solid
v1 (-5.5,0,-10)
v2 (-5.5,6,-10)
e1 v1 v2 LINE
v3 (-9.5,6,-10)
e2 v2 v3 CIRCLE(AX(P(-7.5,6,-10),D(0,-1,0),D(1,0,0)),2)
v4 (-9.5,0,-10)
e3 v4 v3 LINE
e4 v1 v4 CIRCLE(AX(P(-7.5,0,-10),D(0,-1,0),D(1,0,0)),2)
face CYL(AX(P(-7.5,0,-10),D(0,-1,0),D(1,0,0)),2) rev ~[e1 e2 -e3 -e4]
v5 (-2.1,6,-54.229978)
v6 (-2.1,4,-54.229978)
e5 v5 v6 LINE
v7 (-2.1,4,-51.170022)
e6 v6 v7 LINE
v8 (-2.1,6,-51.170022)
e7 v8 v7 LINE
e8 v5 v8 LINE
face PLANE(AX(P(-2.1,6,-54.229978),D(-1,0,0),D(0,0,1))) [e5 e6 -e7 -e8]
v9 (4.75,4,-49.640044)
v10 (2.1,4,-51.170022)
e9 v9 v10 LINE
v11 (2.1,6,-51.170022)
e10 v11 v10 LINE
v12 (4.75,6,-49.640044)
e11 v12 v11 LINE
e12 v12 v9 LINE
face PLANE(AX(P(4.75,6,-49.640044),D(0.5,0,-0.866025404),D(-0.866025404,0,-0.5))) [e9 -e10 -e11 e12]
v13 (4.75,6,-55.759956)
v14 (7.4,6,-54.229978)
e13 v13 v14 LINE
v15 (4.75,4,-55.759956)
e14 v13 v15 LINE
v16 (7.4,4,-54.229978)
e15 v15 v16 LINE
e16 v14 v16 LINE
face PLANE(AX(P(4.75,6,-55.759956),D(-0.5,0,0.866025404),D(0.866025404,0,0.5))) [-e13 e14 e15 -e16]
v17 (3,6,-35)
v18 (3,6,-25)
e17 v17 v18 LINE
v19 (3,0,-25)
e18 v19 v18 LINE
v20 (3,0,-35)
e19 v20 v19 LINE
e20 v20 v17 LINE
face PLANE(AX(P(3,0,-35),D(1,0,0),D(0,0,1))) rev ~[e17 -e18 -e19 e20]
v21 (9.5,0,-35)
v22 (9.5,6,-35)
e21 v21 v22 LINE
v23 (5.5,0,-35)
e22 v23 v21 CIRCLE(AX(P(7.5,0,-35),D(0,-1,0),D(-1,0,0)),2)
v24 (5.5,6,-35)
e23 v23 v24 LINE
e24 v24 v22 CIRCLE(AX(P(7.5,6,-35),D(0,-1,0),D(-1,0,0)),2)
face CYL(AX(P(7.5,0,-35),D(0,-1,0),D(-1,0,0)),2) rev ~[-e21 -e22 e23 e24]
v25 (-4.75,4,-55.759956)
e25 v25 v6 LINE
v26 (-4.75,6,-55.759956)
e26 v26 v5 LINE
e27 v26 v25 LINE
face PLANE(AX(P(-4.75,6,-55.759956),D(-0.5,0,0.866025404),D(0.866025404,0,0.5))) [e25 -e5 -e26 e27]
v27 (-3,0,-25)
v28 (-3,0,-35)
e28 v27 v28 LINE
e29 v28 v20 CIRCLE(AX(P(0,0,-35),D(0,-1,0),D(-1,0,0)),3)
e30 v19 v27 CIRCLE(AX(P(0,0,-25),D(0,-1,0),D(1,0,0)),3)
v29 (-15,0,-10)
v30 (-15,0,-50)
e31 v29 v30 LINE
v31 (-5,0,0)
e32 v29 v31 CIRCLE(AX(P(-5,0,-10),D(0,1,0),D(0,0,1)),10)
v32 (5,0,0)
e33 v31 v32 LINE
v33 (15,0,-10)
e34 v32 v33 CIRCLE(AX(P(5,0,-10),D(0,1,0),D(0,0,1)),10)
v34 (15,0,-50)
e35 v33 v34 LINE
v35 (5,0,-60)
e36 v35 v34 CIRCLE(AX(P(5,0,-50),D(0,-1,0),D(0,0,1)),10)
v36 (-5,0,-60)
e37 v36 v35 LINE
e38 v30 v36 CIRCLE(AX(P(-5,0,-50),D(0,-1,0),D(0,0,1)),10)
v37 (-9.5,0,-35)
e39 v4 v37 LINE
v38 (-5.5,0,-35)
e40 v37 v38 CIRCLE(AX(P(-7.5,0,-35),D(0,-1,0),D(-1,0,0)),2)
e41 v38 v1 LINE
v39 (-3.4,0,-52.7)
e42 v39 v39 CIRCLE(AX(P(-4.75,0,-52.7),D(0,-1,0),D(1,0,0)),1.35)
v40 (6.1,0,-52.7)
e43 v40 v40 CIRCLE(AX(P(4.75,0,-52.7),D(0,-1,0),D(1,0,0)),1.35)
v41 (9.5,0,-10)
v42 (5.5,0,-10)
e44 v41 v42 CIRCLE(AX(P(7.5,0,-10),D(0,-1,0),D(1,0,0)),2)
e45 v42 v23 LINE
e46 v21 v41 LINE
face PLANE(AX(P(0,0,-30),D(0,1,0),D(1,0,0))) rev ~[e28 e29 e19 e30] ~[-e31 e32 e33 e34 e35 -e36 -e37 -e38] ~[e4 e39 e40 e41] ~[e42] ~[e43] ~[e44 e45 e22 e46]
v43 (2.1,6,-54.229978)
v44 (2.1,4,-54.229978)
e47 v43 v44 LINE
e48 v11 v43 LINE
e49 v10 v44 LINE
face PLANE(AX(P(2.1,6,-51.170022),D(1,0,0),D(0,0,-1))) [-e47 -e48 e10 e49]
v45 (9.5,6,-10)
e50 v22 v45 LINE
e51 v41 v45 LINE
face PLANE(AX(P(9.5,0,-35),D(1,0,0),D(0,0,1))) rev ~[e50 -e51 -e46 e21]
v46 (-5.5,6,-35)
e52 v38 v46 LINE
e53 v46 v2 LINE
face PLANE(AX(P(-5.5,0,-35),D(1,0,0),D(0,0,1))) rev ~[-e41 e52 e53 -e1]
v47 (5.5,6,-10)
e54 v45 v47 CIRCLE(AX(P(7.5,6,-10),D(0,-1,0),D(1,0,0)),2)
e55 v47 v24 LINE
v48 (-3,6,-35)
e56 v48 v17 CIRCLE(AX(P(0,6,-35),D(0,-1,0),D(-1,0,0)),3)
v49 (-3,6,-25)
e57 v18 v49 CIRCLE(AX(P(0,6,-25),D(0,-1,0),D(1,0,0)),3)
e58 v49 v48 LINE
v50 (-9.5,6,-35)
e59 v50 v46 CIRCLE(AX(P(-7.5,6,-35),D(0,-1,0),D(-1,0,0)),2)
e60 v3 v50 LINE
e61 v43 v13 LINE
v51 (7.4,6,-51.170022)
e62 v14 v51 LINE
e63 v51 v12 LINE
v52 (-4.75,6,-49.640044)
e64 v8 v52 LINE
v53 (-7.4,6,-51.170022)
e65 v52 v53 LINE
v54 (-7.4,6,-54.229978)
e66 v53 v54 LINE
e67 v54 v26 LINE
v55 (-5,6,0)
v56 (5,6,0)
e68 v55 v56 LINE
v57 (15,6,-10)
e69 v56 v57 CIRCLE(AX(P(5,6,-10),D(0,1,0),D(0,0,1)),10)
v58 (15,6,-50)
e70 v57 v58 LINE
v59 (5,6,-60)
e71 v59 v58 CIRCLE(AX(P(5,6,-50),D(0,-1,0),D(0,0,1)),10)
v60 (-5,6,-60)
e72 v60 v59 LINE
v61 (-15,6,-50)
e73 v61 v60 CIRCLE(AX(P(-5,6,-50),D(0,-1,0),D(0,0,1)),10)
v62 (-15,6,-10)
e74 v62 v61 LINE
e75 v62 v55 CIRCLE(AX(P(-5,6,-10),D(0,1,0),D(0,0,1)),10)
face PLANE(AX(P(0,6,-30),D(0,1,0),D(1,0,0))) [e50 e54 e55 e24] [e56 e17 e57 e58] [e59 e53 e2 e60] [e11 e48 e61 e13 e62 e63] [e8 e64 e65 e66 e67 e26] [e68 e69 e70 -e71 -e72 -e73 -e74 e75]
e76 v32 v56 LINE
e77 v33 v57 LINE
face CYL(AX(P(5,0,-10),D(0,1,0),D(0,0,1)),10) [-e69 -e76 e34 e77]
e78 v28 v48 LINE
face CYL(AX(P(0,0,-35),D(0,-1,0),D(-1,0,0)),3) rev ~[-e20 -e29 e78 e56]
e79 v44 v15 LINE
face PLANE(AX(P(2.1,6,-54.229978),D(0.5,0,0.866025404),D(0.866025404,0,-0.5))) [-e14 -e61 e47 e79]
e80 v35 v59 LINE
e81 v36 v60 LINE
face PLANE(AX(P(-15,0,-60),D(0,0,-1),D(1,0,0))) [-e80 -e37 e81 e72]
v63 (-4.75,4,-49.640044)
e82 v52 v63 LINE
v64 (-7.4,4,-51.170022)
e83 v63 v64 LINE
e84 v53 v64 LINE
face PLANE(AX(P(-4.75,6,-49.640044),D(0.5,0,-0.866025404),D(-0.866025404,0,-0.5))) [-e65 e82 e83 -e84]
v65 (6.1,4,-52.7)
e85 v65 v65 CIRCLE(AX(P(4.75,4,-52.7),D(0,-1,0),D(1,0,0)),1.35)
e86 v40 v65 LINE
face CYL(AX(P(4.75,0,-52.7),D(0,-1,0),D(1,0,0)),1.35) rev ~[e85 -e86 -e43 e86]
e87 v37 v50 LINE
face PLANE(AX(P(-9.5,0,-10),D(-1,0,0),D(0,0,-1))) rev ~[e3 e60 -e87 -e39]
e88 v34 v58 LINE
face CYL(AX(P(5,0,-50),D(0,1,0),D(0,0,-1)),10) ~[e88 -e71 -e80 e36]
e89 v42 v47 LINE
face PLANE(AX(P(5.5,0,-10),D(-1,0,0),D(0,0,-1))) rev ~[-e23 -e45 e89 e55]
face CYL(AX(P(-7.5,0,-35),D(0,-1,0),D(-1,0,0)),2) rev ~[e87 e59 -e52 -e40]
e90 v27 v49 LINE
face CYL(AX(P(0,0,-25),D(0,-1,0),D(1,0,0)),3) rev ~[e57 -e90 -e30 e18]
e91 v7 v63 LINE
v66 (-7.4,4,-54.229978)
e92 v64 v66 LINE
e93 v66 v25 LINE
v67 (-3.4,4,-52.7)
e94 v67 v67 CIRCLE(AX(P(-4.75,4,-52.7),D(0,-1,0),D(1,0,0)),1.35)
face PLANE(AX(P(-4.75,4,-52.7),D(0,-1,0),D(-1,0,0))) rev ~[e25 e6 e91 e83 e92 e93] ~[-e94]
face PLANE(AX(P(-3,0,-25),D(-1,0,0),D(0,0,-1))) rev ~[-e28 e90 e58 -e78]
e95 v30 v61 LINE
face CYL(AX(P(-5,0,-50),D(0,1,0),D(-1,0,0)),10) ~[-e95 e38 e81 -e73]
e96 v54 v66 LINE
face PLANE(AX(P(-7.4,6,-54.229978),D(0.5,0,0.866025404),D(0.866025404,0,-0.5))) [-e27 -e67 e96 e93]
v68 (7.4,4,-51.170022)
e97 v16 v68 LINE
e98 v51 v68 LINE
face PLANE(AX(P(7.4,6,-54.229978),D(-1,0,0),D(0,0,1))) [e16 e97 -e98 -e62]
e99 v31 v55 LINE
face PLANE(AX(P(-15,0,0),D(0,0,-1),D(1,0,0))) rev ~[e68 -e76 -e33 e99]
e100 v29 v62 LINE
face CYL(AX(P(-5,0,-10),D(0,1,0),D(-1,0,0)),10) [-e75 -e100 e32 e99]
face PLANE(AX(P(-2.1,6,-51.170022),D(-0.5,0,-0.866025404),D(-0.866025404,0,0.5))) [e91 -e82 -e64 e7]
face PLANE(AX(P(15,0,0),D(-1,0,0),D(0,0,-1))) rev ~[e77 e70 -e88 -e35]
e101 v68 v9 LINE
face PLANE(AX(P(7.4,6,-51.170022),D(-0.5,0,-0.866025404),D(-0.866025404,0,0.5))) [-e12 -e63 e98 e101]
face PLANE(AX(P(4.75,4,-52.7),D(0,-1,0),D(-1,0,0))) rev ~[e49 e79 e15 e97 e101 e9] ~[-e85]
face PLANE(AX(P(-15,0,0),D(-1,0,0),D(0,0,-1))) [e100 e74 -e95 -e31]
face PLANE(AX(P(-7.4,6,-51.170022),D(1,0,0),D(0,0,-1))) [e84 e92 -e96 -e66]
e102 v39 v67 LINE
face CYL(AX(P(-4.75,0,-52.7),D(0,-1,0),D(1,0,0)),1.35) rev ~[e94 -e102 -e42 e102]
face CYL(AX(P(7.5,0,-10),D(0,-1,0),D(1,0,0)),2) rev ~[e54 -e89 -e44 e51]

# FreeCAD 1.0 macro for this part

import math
import FreeCAD as App
import Part
import Sketcher
from FreeCAD import Vector
Q = App.Units.Quantity


def edges_at(feature, points):
    """Names of the edges that pass closest to the given points."""
    edges = feature.Shape.Edges
    near = lambda p: min(range(len(edges)), key=lambda i: edges[i].distToShape(Part.Vertex(*p))[0])
    return sorted({f"Edge{near(p) + 1}" for p in points})

doc = App.newDocument("Part")
body = doc.addObject("PartDesign::Body", "Body")

# Sketch on XZ plane
sketch1 = body.newObject("Sketcher::SketchObject", "Sketch")
sketch1.AttachmentSupport = (doc.getObject("XZ_Plane"), [""])
sketch1.MapMode = "FlatFace"
sketch1.addGeometry(Part.LineSegment(Vector(-15, -60, 0), Vector(-15, 0, 0)), False)
sketch1.addGeometry(Part.LineSegment(Vector(-15, 0, 0), Vector(15, 0, 0)), False)
sketch1.addGeometry(Part.LineSegment(Vector(15, 0, 0), Vector(15, -60, 0)), False)
sketch1.addGeometry(Part.LineSegment(Vector(15, -60, 0), Vector(-15, -60, 0)), False)
sketch1.addGeometry(Part.ArcOfCircle(Part.Circle(Vector(-7.5, -35, 0), Vector(0, 0, 1), 2), math.radians(180), math.radians(360)), False)
sketch1.addGeometry(Part.LineSegment(Vector(-5.5, -35, 0), Vector(-5.5, -10, 0)), False)
sketch1.addGeometry(Part.ArcOfCircle(Part.Circle(Vector(-7.5, -10, 0), Vector(0, 0, 1), 2), math.radians(0), math.radians(180)), False)
sketch1.addGeometry(Part.LineSegment(Vector(-9.5, -10, 0), Vector(-9.5, -35, 0)), False)
sketch1.addGeometry(Part.ArcOfCircle(Part.Circle(Vector(7.5, -35, 0), Vector(0, 0, 1), 2), math.radians(180), math.radians(360)), False)
sketch1.addGeometry(Part.LineSegment(Vector(9.5, -35, 0), Vector(9.5, -10, 0)), False)
sketch1.addGeometry(Part.ArcOfCircle(Part.Circle(Vector(7.5, -10, 0), Vector(0, 0, 1), 2), math.radians(0), math.radians(180)), False)
sketch1.addGeometry(Part.LineSegment(Vector(5.5, -10, 0), Vector(5.5, -35, 0)), False)
sketch1.addGeometry(Part.ArcOfCircle(Part.Circle(Vector(0, -35, 0), Vector(0, 0, 1), 3), math.radians(180), math.radians(360)), False)
sketch1.addGeometry(Part.LineSegment(Vector(3, -35, 0), Vector(3, -25, 0)), False)
sketch1.addGeometry(Part.ArcOfCircle(Part.Circle(Vector(0, -25, 0), Vector(0, 0, 1), 3), math.radians(0), math.radians(180)), False)
sketch1.addGeometry(Part.LineSegment(Vector(-3, -25, 0), Vector(-3, -35, 0)), False)
sketch1.addConstraint(Sketcher.Constraint("Coincident", 0, 2, 1, 1))
sketch1.addConstraint(Sketcher.Constraint("Coincident", 1, 2, 2, 1))
sketch1.addConstraint(Sketcher.Constraint("Coincident", 2, 2, 3, 1))
sketch1.addConstraint(Sketcher.Constraint("Coincident", 3, 2, 0, 1))
sketch1.addConstraint(Sketcher.Constraint("Tangent", 4, 2, 5, 1))
sketch1.addConstraint(Sketcher.Constraint("Tangent", 5, 2, 6, 1))
sketch1.addConstraint(Sketcher.Constraint("Tangent", 6, 2, 7, 1))
sketch1.addConstraint(Sketcher.Constraint("Tangent", 7, 2, 4, 1))
sketch1.addConstraint(Sketcher.Constraint("Tangent", 8, 2, 9, 1))
sketch1.addConstraint(Sketcher.Constraint("Tangent", 9, 2, 10, 1))
sketch1.addConstraint(Sketcher.Constraint("Tangent", 10, 2, 11, 1))
sketch1.addConstraint(Sketcher.Constraint("Tangent", 11, 2, 8, 1))
sketch1.addConstraint(Sketcher.Constraint("Tangent", 12, 2, 13, 1))
sketch1.addConstraint(Sketcher.Constraint("Tangent", 13, 2, 14, 1))
sketch1.addConstraint(Sketcher.Constraint("Tangent", 14, 2, 15, 1))
sketch1.addConstraint(Sketcher.Constraint("Tangent", 15, 2, 12, 1))
sketch1.addConstraint(Sketcher.Constraint("Vertical", 0))
sketch1.addConstraint(Sketcher.Constraint("Horizontal", 1))
sketch1.addConstraint(Sketcher.Constraint("Vertical", 2))
sketch1.addConstraint(Sketcher.Constraint("Horizontal", 3))
sketch1.addConstraint(Sketcher.Constraint("Vertical", 5))
sketch1.addConstraint(Sketcher.Constraint("Vertical", 7))
sketch1.addConstraint(Sketcher.Constraint("Vertical", 9))
sketch1.addConstraint(Sketcher.Constraint("Vertical", 11))
sketch1.addConstraint(Sketcher.Constraint("Vertical", 13))
sketch1.addConstraint(Sketcher.Constraint("Vertical", 15))
sketch1.addConstraint(Sketcher.Constraint("Equal", 6, 8))
sketch1.addConstraint(Sketcher.Constraint("Symmetric", 0, 2, 1, 2, -1, 1))
sketch1.addConstraint(Sketcher.Constraint("Symmetric", 4, 3, 8, 3, -2))
sketch1.addConstraint(Sketcher.Constraint("PointOnObject", 12, 3, -2))
sketch1.addConstraint(Sketcher.Constraint("Horizontal", 6, 3, 10, 3))
sketch1.addConstraint(Sketcher.Constraint("Horizontal", 8, 3, 12, 3))
sketch1.addConstraint(Sketcher.Constraint("Radius", 4, 2.0))
sketch1.addConstraint(Sketcher.Constraint("Radius", 12, 3.0))
sketch1.addConstraint(Sketcher.Constraint("DistanceX", 1, 1, 1, 2, 30.0))
sketch1.addConstraint(Sketcher.Constraint("DistanceY", 0, 1, 0, 2, 60.0))
sketch1.addConstraint(Sketcher.Constraint("DistanceY", 5, 1, 5, 2, 25.0))
sketch1.addConstraint(Sketcher.Constraint("DistanceY", 13, 1, 13, 2, 10.0))
sketch1.addConstraint(Sketcher.Constraint("DistanceY", 4, 3, -1, 1, 35.0))
sketch1.addConstraint(Sketcher.Constraint("DistanceX", 4, 3, 8, 3, 15.0))
pad1 = body.newObject("PartDesign::Pad", "Pad")
pad1.Profile = sketch1
pad1.Length = 6
pad1.Reversed = True
doc.recompute()

fillet = body.newObject("PartDesign::Fillet", "Fillet")
fillet.Base = (pad1, edges_at(pad1, [(-15, 3, -60), (15, 3, -60)]))
fillet.Radius = 10
doc.recompute()

fillet2 = body.newObject("PartDesign::Fillet", "Fillet001")
fillet2.Base = (fillet, edges_at(fillet, [(15, 3, 0), (-15, 3, 0)]))
fillet2.Radius = 10

# Sketch on XZ plane
sketch2 = body.newObject("Sketcher::SketchObject", "Sketch001")
sketch2.AttachmentSupport = (doc.getObject("XZ_Plane"), [""])
sketch2.MapMode = "FlatFace"
sketch2.addGeometry(Part.Circle(Vector(4.8, -52.7, 0), Vector(0, 0, 1), 1.4), False)
sketch2.addGeometry(Part.Circle(Vector(-4.8, -52.7, 0), Vector(0, 0, 1), 1.4), False)
sketch2.addConstraint(Sketcher.Constraint("Equal", 0, 1))
sketch2.addConstraint(Sketcher.Constraint("Symmetric", 0, 3, 1, 3, -2))
sketch2.addConstraint(Sketcher.Constraint("Diameter", 0, 2.7))
sketch2.addConstraint(Sketcher.Constraint("DistanceY", 0, 3, -1, 1, 52.7))
sketch2.addConstraint(Sketcher.Constraint("DistanceX", 1, 3, 0, 3, 9.5))
pocket1 = body.newObject("PartDesign::Pocket", "Pocket")
pocket1.Profile = sketch2
pocket1.Type = "ThroughAll"

# Sketch on XZ plane
sketch3 = body.newObject("Sketcher::SketchObject", "Sketch002")
sketch3.AttachmentSupport = (doc.getObject("XZ_Plane"), [""])
sketch3.MapMode = "FlatFace"
sketch3.AttachmentOffset = App.Placement(Vector(0, 0, -6), App.Rotation())
sketch3.addGeometry(Part.LineSegment(Vector(2.1, -51.2, 0), Vector(2.1, -54.2, 0)), False)
sketch3.addGeometry(Part.LineSegment(Vector(2.1, -54.2, 0), Vector(4.8, -55.8, 0)), False)
sketch3.addGeometry(Part.LineSegment(Vector(4.8, -55.8, 0), Vector(7.4, -54.2, 0)), False)
sketch3.addGeometry(Part.LineSegment(Vector(7.4, -54.2, 0), Vector(7.4, -51.2, 0)), False)
sketch3.addGeometry(Part.LineSegment(Vector(7.4, -51.2, 0), Vector(4.8, -49.6, 0)), False)
sketch3.addGeometry(Part.LineSegment(Vector(4.8, -49.6, 0), Vector(2.1, -51.2, 0)), False)
sketch3.addGeometry(Part.LineSegment(Vector(-7.4, -51.2, 0), Vector(-7.4, -54.2, 0)), False)
sketch3.addGeometry(Part.LineSegment(Vector(-7.4, -54.2, 0), Vector(-4.8, -55.8, 0)), False)
sketch3.addGeometry(Part.LineSegment(Vector(-4.8, -55.8, 0), Vector(-2.1, -54.2, 0)), False)
sketch3.addGeometry(Part.LineSegment(Vector(-2.1, -54.2, 0), Vector(-2.1, -51.2, 0)), False)
sketch3.addGeometry(Part.LineSegment(Vector(-2.1, -51.2, 0), Vector(-4.8, -49.6, 0)), False)
sketch3.addGeometry(Part.LineSegment(Vector(-4.8, -49.6, 0), Vector(-7.4, -51.2, 0)), False)
sketch3.addConstraint(Sketcher.Constraint("Coincident", 0, 2, 1, 1))
sketch3.addConstraint(Sketcher.Constraint("Coincident", 1, 2, 2, 1))
sketch3.addConstraint(Sketcher.Constraint("Coincident", 2, 2, 3, 1))
sketch3.addConstraint(Sketcher.Constraint("Coincident", 3, 2, 4, 1))
sketch3.addConstraint(Sketcher.Constraint("Coincident", 4, 2, 5, 1))
sketch3.addConstraint(Sketcher.Constraint("Coincident", 5, 2, 0, 1))
sketch3.addConstraint(Sketcher.Constraint("Coincident", 6, 2, 7, 1))
sketch3.addConstraint(Sketcher.Constraint("Coincident", 7, 2, 8, 1))
sketch3.addConstraint(Sketcher.Constraint("Coincident", 8, 2, 9, 1))
sketch3.addConstraint(Sketcher.Constraint("Coincident", 9, 2, 10, 1))
sketch3.addConstraint(Sketcher.Constraint("Coincident", 10, 2, 11, 1))
sketch3.addConstraint(Sketcher.Constraint("Coincident", 11, 2, 6, 1))
sketch3.addConstraint(Sketcher.Constraint("Vertical", 0))
sketch3.addConstraint(Sketcher.Constraint("Vertical", 3))
sketch3.addConstraint(Sketcher.Constraint("Vertical", 6))
sketch3.addConstraint(Sketcher.Constraint("Vertical", 9))
sketch3.addConstraint(Sketcher.Constraint("Symmetric", 2, 2, 6, 2, -2))
sketch3.addConstraint(Sketcher.Constraint("Symmetric", 1, 2, 7, 2, -2))
sketch3.addConstraint(Sketcher.Constraint("Symmetric", 0, 2, 8, 2, -2))
sketch3.addConstraint(Sketcher.Constraint("Symmetric", 4, 2, 10, 2, -2))
sketch3.addConstraint(Sketcher.Constraint("Parallel", 1, 4))
sketch3.addConstraint(Sketcher.Constraint("Parallel", 2, 5))
sketch3.addConstraint(Sketcher.Constraint("Parallel", 4, 7))
sketch3.addConstraint(Sketcher.Constraint("Parallel", 7, 10))
sketch3.addConstraint(Sketcher.Constraint("Parallel", 8, 11))
sketch3.addConstraint(Sketcher.Constraint("Horizontal", 0, 2, 2, 2))
sketch3.addConstraint(Sketcher.Constraint("Horizontal", 3, 2, 5, 2))
sketch3.addConstraint(Sketcher.Constraint("Angle", 1, Q("-30 deg")))
sketch3.addConstraint(Sketcher.Constraint("DistanceX", -1, 1, 0, 2, 2.1))
sketch3.addConstraint(Sketcher.Constraint("DistanceX", -1, 1, 2, 2, 7.4))
sketch3.addConstraint(Sketcher.Constraint("DistanceY", 0, 2, 0, 1, 3.059956))
sketch3.addConstraint(Sketcher.Constraint("DistanceY", 0, 2, -1, 1, 54.229978))
pocket2 = body.newObject("PartDesign::Pocket", "Pocket001")
pocket2.Profile = sketch3
pocket2.Length = 2
pocket2.Reversed = True

doc.recompute()
